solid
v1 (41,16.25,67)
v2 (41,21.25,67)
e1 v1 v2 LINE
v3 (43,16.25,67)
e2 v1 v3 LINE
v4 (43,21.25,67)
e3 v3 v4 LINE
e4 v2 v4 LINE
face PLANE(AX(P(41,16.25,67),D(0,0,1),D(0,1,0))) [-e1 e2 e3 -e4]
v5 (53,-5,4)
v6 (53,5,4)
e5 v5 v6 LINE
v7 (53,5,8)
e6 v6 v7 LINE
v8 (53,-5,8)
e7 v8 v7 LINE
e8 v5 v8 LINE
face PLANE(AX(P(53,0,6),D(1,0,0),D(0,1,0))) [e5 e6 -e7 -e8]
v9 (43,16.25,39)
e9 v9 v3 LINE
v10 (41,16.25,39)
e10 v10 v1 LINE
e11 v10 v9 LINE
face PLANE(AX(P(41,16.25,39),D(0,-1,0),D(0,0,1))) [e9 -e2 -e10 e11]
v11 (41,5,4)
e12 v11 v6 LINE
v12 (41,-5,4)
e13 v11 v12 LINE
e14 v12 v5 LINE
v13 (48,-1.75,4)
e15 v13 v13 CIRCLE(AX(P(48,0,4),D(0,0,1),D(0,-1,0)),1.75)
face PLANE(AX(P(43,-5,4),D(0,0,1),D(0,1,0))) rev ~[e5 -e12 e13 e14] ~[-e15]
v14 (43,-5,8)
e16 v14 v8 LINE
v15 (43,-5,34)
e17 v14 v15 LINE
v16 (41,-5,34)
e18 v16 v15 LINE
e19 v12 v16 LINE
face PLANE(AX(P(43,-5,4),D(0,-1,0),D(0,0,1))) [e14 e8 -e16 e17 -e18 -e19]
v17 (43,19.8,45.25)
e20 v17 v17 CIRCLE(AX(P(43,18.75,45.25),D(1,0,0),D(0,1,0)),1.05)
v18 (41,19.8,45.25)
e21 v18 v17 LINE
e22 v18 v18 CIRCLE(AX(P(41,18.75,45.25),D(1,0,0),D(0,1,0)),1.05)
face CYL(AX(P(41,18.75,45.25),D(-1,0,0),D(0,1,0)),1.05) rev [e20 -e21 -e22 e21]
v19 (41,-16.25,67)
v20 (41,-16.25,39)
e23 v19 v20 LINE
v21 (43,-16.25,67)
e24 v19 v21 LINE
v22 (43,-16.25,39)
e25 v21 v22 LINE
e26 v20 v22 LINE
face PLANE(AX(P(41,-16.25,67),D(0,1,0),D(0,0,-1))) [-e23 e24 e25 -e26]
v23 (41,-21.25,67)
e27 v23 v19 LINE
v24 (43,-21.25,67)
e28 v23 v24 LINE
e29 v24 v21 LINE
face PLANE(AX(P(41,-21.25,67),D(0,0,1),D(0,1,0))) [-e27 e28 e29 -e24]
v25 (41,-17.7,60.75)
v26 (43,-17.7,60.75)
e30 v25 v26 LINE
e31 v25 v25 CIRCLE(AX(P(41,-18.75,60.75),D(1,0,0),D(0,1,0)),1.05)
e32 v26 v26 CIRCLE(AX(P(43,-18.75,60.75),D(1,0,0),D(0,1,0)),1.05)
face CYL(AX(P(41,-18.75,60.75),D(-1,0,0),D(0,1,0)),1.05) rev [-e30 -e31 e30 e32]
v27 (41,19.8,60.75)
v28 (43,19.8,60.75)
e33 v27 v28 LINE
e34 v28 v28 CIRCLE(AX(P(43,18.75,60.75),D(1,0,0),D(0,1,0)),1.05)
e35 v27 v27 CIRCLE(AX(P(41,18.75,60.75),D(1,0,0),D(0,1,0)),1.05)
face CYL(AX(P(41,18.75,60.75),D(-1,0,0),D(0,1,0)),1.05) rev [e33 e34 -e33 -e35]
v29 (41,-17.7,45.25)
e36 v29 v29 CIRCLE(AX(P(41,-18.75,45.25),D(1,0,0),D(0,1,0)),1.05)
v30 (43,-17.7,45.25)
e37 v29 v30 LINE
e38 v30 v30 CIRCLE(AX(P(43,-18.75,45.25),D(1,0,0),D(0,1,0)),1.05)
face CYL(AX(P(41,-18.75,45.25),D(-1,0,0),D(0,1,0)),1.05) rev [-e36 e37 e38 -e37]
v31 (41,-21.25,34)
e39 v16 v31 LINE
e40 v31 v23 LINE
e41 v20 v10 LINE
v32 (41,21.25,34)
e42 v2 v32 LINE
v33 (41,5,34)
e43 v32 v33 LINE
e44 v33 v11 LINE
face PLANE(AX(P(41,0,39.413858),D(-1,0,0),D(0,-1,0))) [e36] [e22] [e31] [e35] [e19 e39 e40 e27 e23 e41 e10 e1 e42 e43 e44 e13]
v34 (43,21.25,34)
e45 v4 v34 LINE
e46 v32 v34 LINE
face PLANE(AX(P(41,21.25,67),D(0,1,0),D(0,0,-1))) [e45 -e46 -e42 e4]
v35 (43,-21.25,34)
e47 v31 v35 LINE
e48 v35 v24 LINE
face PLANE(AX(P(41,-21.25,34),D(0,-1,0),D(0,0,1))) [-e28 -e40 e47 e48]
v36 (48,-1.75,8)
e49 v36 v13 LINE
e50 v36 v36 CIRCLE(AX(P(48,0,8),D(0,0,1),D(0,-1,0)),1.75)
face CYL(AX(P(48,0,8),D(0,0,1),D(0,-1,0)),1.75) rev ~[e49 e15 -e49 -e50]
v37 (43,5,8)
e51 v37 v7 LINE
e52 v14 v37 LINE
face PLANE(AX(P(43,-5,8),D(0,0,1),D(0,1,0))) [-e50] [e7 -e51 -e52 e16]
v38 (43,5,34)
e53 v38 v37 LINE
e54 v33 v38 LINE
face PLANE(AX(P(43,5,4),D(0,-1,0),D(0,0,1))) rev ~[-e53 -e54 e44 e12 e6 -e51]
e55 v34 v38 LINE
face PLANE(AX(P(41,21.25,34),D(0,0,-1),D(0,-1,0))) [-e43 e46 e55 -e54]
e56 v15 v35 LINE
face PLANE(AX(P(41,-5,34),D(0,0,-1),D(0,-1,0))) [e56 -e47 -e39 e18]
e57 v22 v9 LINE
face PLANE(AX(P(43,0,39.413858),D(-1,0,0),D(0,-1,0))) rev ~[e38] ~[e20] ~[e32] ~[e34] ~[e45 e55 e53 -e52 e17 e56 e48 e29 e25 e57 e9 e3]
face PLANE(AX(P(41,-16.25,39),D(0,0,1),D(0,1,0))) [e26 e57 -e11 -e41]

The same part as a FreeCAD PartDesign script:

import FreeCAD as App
import Part
import Sketcher

V = App.Vector
Q = App.Units.Quantity

doc = App.newDocument("Part")
body = doc.addObject("PartDesign::Body", "Body")

# Sketch on YZ plane
sketch1 = body.newObject("Sketcher::SketchObject", "Sketch")
sketch1.AttachmentSupport = (doc.getObject("YZ_Plane"), [""])
sketch1.MapMode = "FlatFace"
sketch1.addGeometry(Part.LineSegment(V(-16.2, 67, 0), V(-21.2, 67, 0)), False)
sketch1.addGeometry(Part.LineSegment(V(-21.2, 67, 0), V(-21.2, 34, 0)), False)
sketch1.addGeometry(Part.LineSegment(V(-21.2, 34, 0), V(-5, 34, 0)), False)
sketch1.addGeometry(Part.LineSegment(V(-5, 34, 0), V(-5, 4, 0)), False)
sketch1.addGeometry(Part.LineSegment(V(-5, 4, 0), V(5, 4, 0)), False)
sketch1.addGeometry(Part.LineSegment(V(5, 4, 0), V(5, 34, 0)), False)
sketch1.addGeometry(Part.LineSegment(V(5, 34, 0), V(21.2, 34, 0)), False)
sketch1.addGeometry(Part.LineSegment(V(21.2, 34, 0), V(21.2, 67, 0)), False)
sketch1.addGeometry(Part.LineSegment(V(21.2, 67, 0), V(16.2, 67, 0)), False)
sketch1.addGeometry(Part.LineSegment(V(16.2, 67, 0), V(16.2, 39, 0)), False)
sketch1.addGeometry(Part.LineSegment(V(16.2, 39, 0), V(-16.2, 39, 0)), False)
sketch1.addGeometry(Part.LineSegment(V(-16.2, 39, 0), V(-16.2, 67, 0)), False)
sketch1.addGeometry(Part.Circle(V(18.8, 45.2, 0), V(0, 0, 1), 1.1), False)
sketch1.addGeometry(Part.Circle(V(-18.8, 45.2, 0), V(0, 0, 1), 1.1), False)
sketch1.addGeometry(Part.Circle(V(18.8, 60.8, 0), V(0, 0, 1), 1.1), False)
sketch1.addGeometry(Part.Circle(V(-18.8, 60.8, 0), V(0, 0, 1), 1.1), False)
sketch1.addConstraint(Sketcher.Constraint("Coincident", 0, 2, 1, 1))
sketch1.addConstraint(Sketcher.Constraint("Coincident", 1, 2, 2, 1))
sketch1.addConstraint(Sketcher.Constraint("Coincident", 2, 2, 3, 1))
sketch1.addConstraint(Sketcher.Constraint("Coincident", 3, 2, 4, 1))
sketch1.addConstraint(Sketcher.Constraint("Coincident", 4, 2, 5, 1))
sketch1.addConstraint(Sketcher.Constraint("Coincident", 5, 2, 6, 1))
sketch1.addConstraint(Sketcher.Constraint("Coincident", 6, 2, 7, 1))
sketch1.addConstraint(Sketcher.Constraint("Coincident", 7, 2, 8, 1))
sketch1.addConstraint(Sketcher.Constraint("Coincident", 8, 2, 9, 1))
sketch1.addConstraint(Sketcher.Constraint("Coincident", 9, 2, 10, 1))
sketch1.addConstraint(Sketcher.Constraint("Coincident", 10, 2, 11, 1))
sketch1.addConstraint(Sketcher.Constraint("Coincident", 11, 2, 0, 1))
sketch1.addConstraint(Sketcher.Constraint("Horizontal", 0))
sketch1.addConstraint(Sketcher.Constraint("Vertical", 1))
sketch1.addConstraint(Sketcher.Constraint("Horizontal", 2))
sketch1.addConstraint(Sketcher.Constraint("Vertical", 3))
sketch1.addConstraint(Sketcher.Constraint("Horizontal", 4))
sketch1.addConstraint(Sketcher.Constraint("Vertical", 5))
sketch1.addConstraint(Sketcher.Constraint("Horizontal", 6))
sketch1.addConstraint(Sketcher.Constraint("Vertical", 7))
sketch1.addConstraint(Sketcher.Constraint("Horizontal", 8))
sketch1.addConstraint(Sketcher.Constraint("Vertical", 9))
sketch1.addConstraint(Sketcher.Constraint("Horizontal", 10))
sketch1.addConstraint(Sketcher.Constraint("Vertical", 11))
sketch1.addConstraint(Sketcher.Constraint("Equal", 12, 13))
sketch1.addConstraint(Sketcher.Constraint("Equal", 13, 14))
sketch1.addConstraint(Sketcher.Constraint("Equal", 14, 15))
sketch1.addConstraint(Sketcher.Constraint("Symmetric", 12, 3, 13, 3, -2))
sketch1.addConstraint(Sketcher.Constraint("Symmetric", 14, 3, 15, 3, -2))
sketch1.addConstraint(Sketcher.Constraint("Symmetric", 2, 2, 5, 2, -2))
sketch1.addConstraint(Sketcher.Constraint("Symmetric", 0, 2, 7, 2, -2))
sketch1.addConstraint(Sketcher.Constraint("Vertical", 12, 3, 14, 3))
sketch1.addConstraint(Sketcher.Constraint("Equal", 0, 8))
sketch1.addConstraint(Sketcher.Constraint("Diameter", 12, Q("2.1 mm")))
sketch1.addConstraint(Sketcher.Constraint("DistanceX", 0, 2, 0, 1, Q("5 mm")))
sketch1.addConstraint(Sketcher.Constraint("DistanceX", 4, 1, 4, 2, Q("10 mm")))
sketch1.addConstraint(Sketcher.Constraint("DistanceY", 1, 2, 1, 1, Q("33 mm")))
sketch1.addConstraint(Sketcher.Constraint("DistanceY", 3, 2, 3, 1, Q("30 mm")))
sketch1.addConstraint(Sketcher.Constraint("DistanceY", 9, 2, 9, 1, Q("28 mm")))
sketch1.addConstraint(Sketcher.Constraint("DistanceX", 10, 2, 10, 1, Q("32.5 mm")))
sketch1.addConstraint(Sketcher.Constraint("DistanceY", -1, 1, 0, 2, Q("67 mm")))
sketch1.addConstraint(Sketcher.Constraint("DistanceX", 0, 2, 14, 3, Q("40 mm")))
sketch1.addConstraint(Sketcher.Constraint("DistanceY", 12, 3, 14, 3, Q("15.5 mm")))
sketch1.addConstraint(Sketcher.Constraint("DistanceY", -1, 1, 12, 3, Q("45.25 mm")))
pad1 = body.newObject("PartDesign::Pad", "Pad")
pad1.Profile = sketch1
pad1.Length = 2

# Sketch on YZ plane
sketch2 = body.newObject("Sketcher::SketchObject", "Sketch001")
sketch2.AttachmentSupport = (doc.getObject("YZ_Plane"), [""])
sketch2.MapMode = "FlatFace"
sketch2.AttachmentOffset = App.Placement(V(0, 0, 2), App.Rotation())
sketch2.addGeometry(Part.LineSegment(V(-5, 8, 0), V(-5, 4, 0)), False)
sketch2.addGeometry(Part.LineSegment(V(-5, 4, 0), V(5, 4, 0)), False)
sketch2.addGeometry(Part.LineSegment(V(5, 4, 0), V(5, 8, 0)), False)
sketch2.addGeometry(Part.LineSegment(V(5, 8, 0), V(-5, 8, 0)), False)
sketch2.addConstraint(Sketcher.Constraint("Coincident", 0, 2, 1, 1))
sketch2.addConstraint(Sketcher.Constraint("Coincident", 1, 2, 2, 1))
sketch2.addConstraint(Sketcher.Constraint("Coincident", 2, 2, 3, 1))
sketch2.addConstraint(Sketcher.Constraint("Coincident", 3, 2, 0, 1))
sketch2.addConstraint(Sketcher.Constraint("Vertical", 0))
sketch2.addConstraint(Sketcher.Constraint("Horizontal", 1))
sketch2.addConstraint(Sketcher.Constraint("Vertical", 2))
sketch2.addConstraint(Sketcher.Constraint("Horizontal", 3))
sketch2.addConstraint(Sketcher.Constraint("DistanceX", 1, 1, 1, 2, Q("10 mm")))
sketch2.addConstraint(Sketcher.Constraint("DistanceY", 0, 2, 0, 1, Q("4 mm")))
sketch2.addConstraint(Sketcher.Constraint("DistanceX", 0, 2, -1, 1, Q("5 mm")))
sketch2.addConstraint(Sketcher.Constraint("DistanceY", -1, 1, 0, 2, Q("4 mm")))
pad2 = body.newObject("PartDesign::Pad", "Pad001")
pad2.Profile = sketch2
pad2.Length = 10

# Sketch on XY plane
sketch3 = body.newObject("Sketcher::SketchObject", "Sketch002")
sketch3.AttachmentSupport = (doc.getObject("XY_Plane"), [""])
sketch3.MapMode = "FlatFace"
sketch3.AttachmentOffset = App.Placement(V(0, 0, 8), App.Rotation())
sketch3.addGeometry(Part.Circle(V(7, 0, 0), V(0, 0, 1), 1.8), False)
sketch3.addConstraint(Sketcher.Constraint("PointOnObject", 0, 3, -1))
sketch3.addConstraint(Sketcher.Constraint("Diameter", 0, Q("3.5 mm")))
sketch3.addConstraint(Sketcher.Constraint("DistanceX", -1, 1, 0, 3, Q("7 mm")))
pocket1 = body.newObject("PartDesign::Pocket", "Pocket")
pocket1.Profile = sketch3
pocket1.Type = "ThroughAll"
body2 = doc.addObject("PartDesign::Body", "Body001")
doc.recompute()

body.Placement = App.Placement(V(41, 0, 0), App.Rotation(V(0, 0, 1), 0))
boolean = body2.newObject("PartDesign::Boolean", "Boolean")
boolean.Type = "Fuse"
boolean.addObjects([body])

doc.recompute()
